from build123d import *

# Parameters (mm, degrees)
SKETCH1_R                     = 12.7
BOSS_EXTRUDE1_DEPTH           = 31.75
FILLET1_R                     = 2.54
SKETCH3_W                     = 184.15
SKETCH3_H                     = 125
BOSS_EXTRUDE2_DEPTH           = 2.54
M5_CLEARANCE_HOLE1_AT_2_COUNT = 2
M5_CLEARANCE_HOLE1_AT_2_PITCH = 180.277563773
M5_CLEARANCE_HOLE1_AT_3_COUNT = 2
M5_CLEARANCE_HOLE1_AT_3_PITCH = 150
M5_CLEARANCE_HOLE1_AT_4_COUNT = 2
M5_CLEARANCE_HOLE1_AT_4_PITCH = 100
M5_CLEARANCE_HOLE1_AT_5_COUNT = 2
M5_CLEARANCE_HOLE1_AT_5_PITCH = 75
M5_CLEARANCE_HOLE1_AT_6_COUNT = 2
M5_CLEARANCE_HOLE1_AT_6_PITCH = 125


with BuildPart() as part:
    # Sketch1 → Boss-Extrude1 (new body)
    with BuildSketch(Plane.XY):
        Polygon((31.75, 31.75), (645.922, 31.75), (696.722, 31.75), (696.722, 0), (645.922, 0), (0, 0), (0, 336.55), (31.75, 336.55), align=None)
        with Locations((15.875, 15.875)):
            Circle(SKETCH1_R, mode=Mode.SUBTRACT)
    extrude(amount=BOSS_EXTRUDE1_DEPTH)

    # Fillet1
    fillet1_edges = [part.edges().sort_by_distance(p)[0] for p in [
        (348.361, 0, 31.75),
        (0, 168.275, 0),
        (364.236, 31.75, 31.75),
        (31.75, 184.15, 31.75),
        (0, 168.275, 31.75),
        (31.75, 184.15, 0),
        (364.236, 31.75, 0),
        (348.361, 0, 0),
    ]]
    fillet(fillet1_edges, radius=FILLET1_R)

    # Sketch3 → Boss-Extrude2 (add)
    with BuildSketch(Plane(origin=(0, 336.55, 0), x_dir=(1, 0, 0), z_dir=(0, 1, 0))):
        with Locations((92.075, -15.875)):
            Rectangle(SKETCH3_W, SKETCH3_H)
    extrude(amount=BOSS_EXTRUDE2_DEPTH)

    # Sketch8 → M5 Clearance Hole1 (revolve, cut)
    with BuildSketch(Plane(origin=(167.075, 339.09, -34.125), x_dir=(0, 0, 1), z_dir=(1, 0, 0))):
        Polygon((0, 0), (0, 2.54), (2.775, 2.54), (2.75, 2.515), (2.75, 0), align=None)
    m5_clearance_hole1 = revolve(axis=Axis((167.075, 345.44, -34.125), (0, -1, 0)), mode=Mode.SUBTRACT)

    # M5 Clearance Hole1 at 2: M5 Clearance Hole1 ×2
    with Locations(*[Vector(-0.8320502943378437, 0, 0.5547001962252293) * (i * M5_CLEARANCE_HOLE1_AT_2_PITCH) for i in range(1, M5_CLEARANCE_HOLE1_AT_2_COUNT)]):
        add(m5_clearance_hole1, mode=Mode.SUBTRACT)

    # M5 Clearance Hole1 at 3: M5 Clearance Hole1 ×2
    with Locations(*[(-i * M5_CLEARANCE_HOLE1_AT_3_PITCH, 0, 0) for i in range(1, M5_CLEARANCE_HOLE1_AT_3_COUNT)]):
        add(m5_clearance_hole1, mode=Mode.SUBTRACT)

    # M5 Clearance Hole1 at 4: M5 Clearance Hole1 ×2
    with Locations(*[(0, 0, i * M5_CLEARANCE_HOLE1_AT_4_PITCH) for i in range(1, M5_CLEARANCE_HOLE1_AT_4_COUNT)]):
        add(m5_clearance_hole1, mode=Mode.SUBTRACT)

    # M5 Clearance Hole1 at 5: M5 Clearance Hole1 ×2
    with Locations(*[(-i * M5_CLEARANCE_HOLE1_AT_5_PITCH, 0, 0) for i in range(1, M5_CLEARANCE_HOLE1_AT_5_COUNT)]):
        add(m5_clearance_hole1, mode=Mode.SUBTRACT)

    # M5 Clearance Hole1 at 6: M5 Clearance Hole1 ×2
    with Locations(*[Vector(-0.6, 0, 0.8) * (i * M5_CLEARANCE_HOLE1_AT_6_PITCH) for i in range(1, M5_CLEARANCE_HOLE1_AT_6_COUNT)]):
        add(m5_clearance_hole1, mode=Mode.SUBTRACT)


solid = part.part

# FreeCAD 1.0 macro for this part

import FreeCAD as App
import Part
import Sketcher
Q = App.Units.Quantity


def edges_at(feature, points):
    """Names of the edges that pass closest to the given points."""
    edges = feature.Shape.Edges
    near = lambda p: min(range(len(edges)), key=lambda i: edges[i].distToShape(Part.Vertex(*p))[0])
    return sorted({f"Edge{near(p) + 1}" for p in points})


def add_polygon(sketch, points):
    """Adds a closed chain of lines whose ends are joined by coincident constraints."""
    first, n = sketch.GeometryCount, len(points)
    for a, b in zip(points, points[1:] + points[:1]):
        sketch.addGeometry(Part.LineSegment(App.Vector(*a, 0), App.Vector(*b, 0)), False)
    for i in range(n):
        sketch.addConstraint(Sketcher.Constraint("Coincident", first + i, 2, first + (i + 1) % n, 1))

doc = App.newDocument("Part")
body = doc.addObject("PartDesign::Body", "Body")

sketch1 = doc.addObject("Sketcher::SketchObject", "Sketch")
body.addObject(sketch1)
sketch1.AttachmentSupport = (doc.XY_Plane, [""])
sketch1.MapMode = "FlatFace"
add_polygon(sketch1, [(697, 32), (32, 32), (32, 337), (0, 337), (0, 0), (697, 0)])
sketch1.addGeometry(Part.Circle(App.Vector(16, 16, 0), App.Vector(0, 0, 1), 13), False)
sketch1.addConstraint(Sketcher.Constraint("Horizontal", 0))
sketch1.addConstraint(Sketcher.Constraint("Vertical", 1))
sketch1.addConstraint(Sketcher.Constraint("Horizontal", 2))
sketch1.addConstraint(Sketcher.Constraint("Vertical", 3))
sketch1.addConstraint(Sketcher.Constraint("Horizontal", 4))
sketch1.addConstraint(Sketcher.Constraint("Vertical", 5))
sketch1.addConstraint(Sketcher.Constraint("Coincident", 3, 2, -1, 1))
sketch1.addConstraint(Sketcher.Constraint("Equal", 2, 5))
sketch1.addConstraint(Sketcher.Constraint("Diameter", 6, Q("1 in")))
sketch1.addConstraint(Sketcher.Constraint("DistanceY", 1, 1, 1, 2, Q("12 in")))
sketch1.addConstraint(Sketcher.Constraint("DistanceX", 0, 2, 0, 1, Q("26.18 in")))
sketch1.addConstraint(Sketcher.Constraint("DistanceX", 2, 2, 2, 1, Q("1.25 in")))
sketch1.addConstraint(Sketcher.Constraint("DistanceX", -1, 1, 6, 3, Q("0.625 in")))
sketch1.addConstraint(Sketcher.Constraint("DistanceY", -1, 1, 6, 3, Q("0.625 in")))
pad1 = doc.addObject("PartDesign::Pad", "Pad")
body.addObject(pad1)
pad1.Profile = sketch1
pad1.Length = Q("1.25 in")
doc.recompute()

fillet = doc.addObject("PartDesign::Fillet", "Fillet")
body.addObject(fillet)
fillet.Base = (pad1, edges_at(pad1, [
    (348.361, 0, 31.75),
    (0, 168.275, 0),
    (364.236, 31.75, 31.75),
    (31.75, 184.15, 31.75),
    (0, 168.275, 31.75),
    (31.75, 184.15, 0),
    (364.236, 31.75, 0),
    (348.361, 0, 0),
]))
fillet.Radius = Q("0.1 in")

sketch2 = doc.addObject("Sketcher::SketchObject", "Sketch001")
body.addObject(sketch2)
sketch2.AttachmentSupport = (doc.XZ_Plane, [""])
sketch2.MapMode = "FlatFace"
sketch2.AttachmentOffset = App.Placement(App.Vector(0, 0, -13.25 * 25.4), App.Rotation())
add_polygon(sketch2, [(0, -47), (0, 78), (184, 78), (184, -47)])
sketch2.addConstraint(Sketcher.Constraint("Vertical", 0))
sketch2.addConstraint(Sketcher.Constraint("Horizontal", 1))
sketch2.addConstraint(Sketcher.Constraint("Vertical", 2))
sketch2.addConstraint(Sketcher.Constraint("Horizontal", 3))
sketch2.addConstraint(Sketcher.Constraint("PointOnObject", 0, 2, -2))
sketch2.addConstraint(Sketcher.Constraint("DistanceX", 1, 1, 1, 2, Q("7.25 in")))
sketch2.addConstraint(Sketcher.Constraint("DistanceY", 0, 1, 0, 2, 125.0))
sketch2.addConstraint(Sketcher.Constraint("DistanceY", -1, 1, 0, 2, 78.375))
pad2 = doc.addObject("PartDesign::Pad", "Pad001")
body.addObject(pad2)
pad2.Profile = sketch2
pad2.Length = Q("0.1 in")
pad2.Reversed = True

sketch3 = doc.addObject("Sketcher::SketchObject", "Sketch002")
body.addObject(sketch3)
sketch3.AttachmentSupport = (doc.YZ_Plane, [""])
sketch3.MapMode = "FlatFace"
sketch3.AttachmentOffset = App.Placement(App.Vector(0, 0, 167.075), App.Rotation())
add_polygon(sketch3, [(336.55, -34.125), (339.09, -34.125), (339.09, -31.375), (336.575, -31.375), (336.55, -31.35)])
sketch3.addGeometry(Part.LineSegment(App.Vector(339.09, -34.125, 0), App.Vector(336.55, -34.125, 0)), True)
sketch3.addConstraint(Sketcher.Constraint("Horizontal", 0))
sketch3.addConstraint(Sketcher.Constraint("Vertical", 1))
sketch3.addConstraint(Sketcher.Constraint("Horizontal", 2))
sketch3.addConstraint(Sketcher.Constraint("Vertical", 4))
sketch3.addConstraint(Sketcher.Constraint("Horizontal", 5))
sketch3.addConstraint(Sketcher.Constraint("Coincident", 5, 1, 0, 2))
sketch3.addConstraint(Sketcher.Constraint("Vertical", 3, 2, 5, 2))
sketch3.addConstraint(Sketcher.Constraint("DistanceX", 0, 1, 0, 2, Q("0.1 in")))
sketch3.addConstraint(Sketcher.Constraint("Angle", 3, Q("135 deg")))
sketch3.addConstraint(Sketcher.Constraint("DistanceX", -1, 1, 0, 2, Q("13.35 in")))
sketch3.addConstraint(Sketcher.Constraint("DistanceX", 2, 2, 2, 1, 2.515))
sketch3.addConstraint(Sketcher.Constraint("DistanceY", 1, 1, 1, 2, 2.75))
sketch3.addConstraint(Sketcher.Constraint("DistanceY", 0, 2, -1, 1, 34.125))
groove = doc.addObject("PartDesign::Groove", "Groove")
body.addObject(groove)
groove.Profile = sketch3
groove.ReferenceAxis = (sketch3, ["Axis0"])
groove.Angle = 360
doc.recompute()

datumline = doc.addObject("PartDesign::Line", "DatumLine")
body.addObject(datumline)
datumline.Placement = App.Placement(App.Vector(0, 0, 0), App.Rotation(App.Vector(0, 0, 1), App.Vector(-0.832050294, 0, 0.554700196)))
linearpattern = doc.addObject("PartDesign::LinearPattern", "LinearPattern")
body.addObject(linearpattern)
linearpattern.Originals = [groove]
linearpattern.Direction = (datumline, [""])
linearpattern.Mode = "offset"
linearpattern.Offset = 180.277564
linearpattern.Occurrences = 2
body.Tip = linearpattern
doc.recompute()

linearpattern2 = doc.addObject("PartDesign::LinearPattern", "LinearPattern001")
body.addObject(linearpattern2)
linearpattern2.Originals = [groove]
linearpattern2.Direction = (doc.X_Axis, [""])
linearpattern2.Mode = "offset"
linearpattern2.Offset = 150
linearpattern2.Occurrences = 2
linearpattern2.Reversed = True
body.Tip = linearpattern2
doc.recompute()

linearpattern3 = doc.addObject("PartDesign::LinearPattern", "LinearPattern002")
body.addObject(linearpattern3)
linearpattern3.Originals = [groove]
linearpattern3.Direction = (doc.Z_Axis, [""])
linearpattern3.Mode = "offset"
linearpattern3.Offset = 100
linearpattern3.Occurrences = 2
body.Tip = linearpattern3
doc.recompute()

linearpattern4 = doc.addObject("PartDesign::LinearPattern", "LinearPattern003")
body.addObject(linearpattern4)
linearpattern4.Originals = [groove]
linearpattern4.Direction = (doc.X_Axis, [""])
linearpattern4.Mode = "offset"
linearpattern4.Offset = 75
linearpattern4.Occurrences = 2
linearpattern4.Reversed = True
body.Tip = linearpattern4
doc.recompute()

datumline2 = doc.addObject("PartDesign::Line", "DatumLine001")
body.addObject(datumline2)
datumline2.Placement = App.Placement(App.Vector(0, 0, 0), App.Rotation(App.Vector(0, 0, 1), App.Vector(-0.6, 0, 0.8)))
linearpattern5 = doc.addObject("PartDesign::LinearPattern", "LinearPattern004")
body.addObject(linearpattern5)
linearpattern5.Originals = [groove]
linearpattern5.Direction = (datumline2, [""])
linearpattern5.Mode = "offset"
linearpattern5.Offset = 125
linearpattern5.Occurrences = 2
body.Tip = linearpattern5

doc.recompute()
